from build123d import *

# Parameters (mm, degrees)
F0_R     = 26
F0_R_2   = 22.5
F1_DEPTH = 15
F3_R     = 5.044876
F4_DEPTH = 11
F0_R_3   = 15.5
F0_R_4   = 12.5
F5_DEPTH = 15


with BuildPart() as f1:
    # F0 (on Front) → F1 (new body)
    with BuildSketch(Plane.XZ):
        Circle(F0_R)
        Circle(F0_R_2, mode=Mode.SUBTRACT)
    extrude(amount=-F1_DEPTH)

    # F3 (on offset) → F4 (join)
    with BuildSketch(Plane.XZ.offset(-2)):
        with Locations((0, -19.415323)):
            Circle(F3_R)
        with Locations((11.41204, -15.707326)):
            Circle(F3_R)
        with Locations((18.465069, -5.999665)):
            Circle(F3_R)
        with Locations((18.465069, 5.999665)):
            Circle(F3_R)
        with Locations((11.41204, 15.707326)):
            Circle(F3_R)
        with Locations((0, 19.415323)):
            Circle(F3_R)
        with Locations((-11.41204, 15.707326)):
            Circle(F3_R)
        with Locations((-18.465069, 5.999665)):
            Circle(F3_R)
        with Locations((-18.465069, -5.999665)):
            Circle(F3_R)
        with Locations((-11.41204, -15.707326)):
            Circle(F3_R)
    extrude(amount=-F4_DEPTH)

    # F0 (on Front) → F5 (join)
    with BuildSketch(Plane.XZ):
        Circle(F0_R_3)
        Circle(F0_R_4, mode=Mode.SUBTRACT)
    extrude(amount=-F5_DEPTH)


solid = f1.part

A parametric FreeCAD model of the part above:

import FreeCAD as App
import Part
import Sketcher
Q = App.Units.Quantity

doc = App.newDocument("Part")
body = doc.addObject("PartDesign::Body", "Body")

# Sketch on XZ plane
sketch1 = doc.addObject("Sketcher::SketchObject", "Sketch")
body.addObject(sketch1)
sketch1.AttachmentSupport = (doc.XZ_Plane, [""])
sketch1.MapMode = "FlatFace"
sketch1.addGeometry(Part.Circle(App.Vector(0, 0, 0), App.Vector(0, 0, 1), 26), False)
sketch1.addGeometry(Part.Circle(App.Vector(0, 0, 0), App.Vector(0, 0, 1), 22), False)
sketch1.addConstraint(Sketcher.Constraint("Coincident", 0, 3, -1, 1))
sketch1.addConstraint(Sketcher.Constraint("Coincident", 1, 3, -1, 1))
sketch1.addConstraint(Sketcher.Constraint("Diameter", 0, Q("52 mm")))
sketch1.addConstraint(Sketcher.Constraint("Diameter", 1, Q("45 mm")))
pad1 = doc.addObject("PartDesign::Pad", "Pad")
body.addObject(pad1)
pad1.Profile = sketch1
pad1.Length = 15
pad1.Reversed = True

# Sketch on XZ plane
sketch2 = doc.addObject("Sketcher::SketchObject", "Sketch001")
body.addObject(sketch2)
sketch2.AttachmentSupport = (doc.XZ_Plane, [""])
sketch2.MapMode = "FlatFace"
sketch2.AttachmentOffset = App.Placement(App.Vector(0, 0, -2), App.Rotation())
sketch2.addGeometry(Part.Circle(App.Vector(0, -19, 0), App.Vector(0, 0, 1), 5), False)
sketch2.addGeometry(Part.Circle(App.Vector(11, -16, 0), App.Vector(0, 0, 1), 5), False)
sketch2.addGeometry(Part.Circle(App.Vector(18, -6, 0), App.Vector(0, 0, 1), 5), False)
sketch2.addGeometry(Part.Circle(App.Vector(18, 6, 0), App.Vector(0, 0, 1), 5), False)
sketch2.addGeometry(Part.Circle(App.Vector(11, 16, 0), App.Vector(0, 0, 1), 5), False)
sketch2.addGeometry(Part.Circle(App.Vector(0, 19, 0), App.Vector(0, 0, 1), 5), False)
sketch2.addGeometry(Part.Circle(App.Vector(-11, 16, 0), App.Vector(0, 0, 1), 5), False)
sketch2.addGeometry(Part.Circle(App.Vector(-18, 6, 0), App.Vector(0, 0, 1), 5), False)
sketch2.addGeometry(Part.Circle(App.Vector(-18, -6, 0), App.Vector(0, 0, 1), 5), False)
sketch2.addGeometry(Part.Circle(App.Vector(-11, -16, 0), App.Vector(0, 0, 1), 5), False)
sketch2.addConstraint(Sketcher.Constraint("Equal", 0, 1))
sketch2.addConstraint(Sketcher.Constraint("Equal", 1, 2))
sketch2.addConstraint(Sketcher.Constraint("Equal", 2, 3))
sketch2.addConstraint(Sketcher.Constraint("Equal", 3, 4))
sketch2.addConstraint(Sketcher.Constraint("Equal", 4, 5))
sketch2.addConstraint(Sketcher.Constraint("Equal", 5, 6))
sketch2.addConstraint(Sketcher.Constraint("Equal", 6, 7))
sketch2.addConstraint(Sketcher.Constraint("Equal", 7, 8))
sketch2.addConstraint(Sketcher.Constraint("Equal", 8, 9))
sketch2.addConstraint(Sketcher.Constraint("Symmetric", 0, 3, 5, 3, -1, 1))
sketch2.addConstraint(Sketcher.Constraint("Symmetric", 1, 3, 6, 3, -1, 1))
sketch2.addConstraint(Sketcher.Constraint("Symmetric", 2, 3, 7, 3, -1, 1))
sketch2.addConstraint(Sketcher.Constraint("Symmetric", 3, 3, 8, 3, -1, 1))
sketch2.addConstraint(Sketcher.Constraint("Symmetric", 4, 3, 9, 3, -1, 1))
sketch2.addConstraint(Sketcher.Constraint("Symmetric", 4, 3, 6, 3, -2))
sketch2.addConstraint(Sketcher.Constraint("Symmetric", 3, 3, 7, 3, -2))
sketch2.addConstraint(Sketcher.Constraint("PointOnObject", 0, 3, -2))
sketch2.addConstraint(Sketcher.Constraint("Diameter", 0, Q("10.089752 mm")))
sketch2.addConstraint(Sketcher.Constraint("DistanceX", -1, 1, 1, 3, Q("11.41204 mm")))
sketch2.addConstraint(Sketcher.Constraint("DistanceX", -1, 1, 2, 3, Q("18.465069 mm")))
sketch2.addConstraint(Sketcher.Constraint("DistanceY", 1, 3, 2, 3, Q("9.707661 mm")))
sketch2.addConstraint(Sketcher.Constraint("DistanceY", 2, 3, 3, 3, Q("11.99933 mm")))
sketch2.addConstraint(Sketcher.Constraint("DistanceY", 0, 3, 3, 3, Q("25.414988 mm")))
pad2 = doc.addObject("PartDesign::Pad", "Pad001")
body.addObject(pad2)
pad2.Profile = sketch2
pad2.Length = 11
pad2.Reversed = True

# Sketch on XZ plane
sketch3 = doc.addObject("Sketcher::SketchObject", "Sketch002")
body.addObject(sketch3)
sketch3.AttachmentSupport = (doc.XZ_Plane, [""])
sketch3.MapMode = "FlatFace"
sketch3.addGeometry(Part.Circle(App.Vector(0, 0, 0), App.Vector(0, 0, 1), 16), False)
sketch3.addGeometry(Part.Circle(App.Vector(0, 0, 0), App.Vector(0, 0, 1), 12), False)
sketch3.addConstraint(Sketcher.Constraint("Coincident", 0, 3, -1, 1))
sketch3.addConstraint(Sketcher.Constraint("Coincident", 1, 3, -1, 1))
sketch3.addConstraint(Sketcher.Constraint("Diameter", 0, Q("31 mm")))
sketch3.addConstraint(Sketcher.Constraint("Diameter", 1, Q("25 mm")))
pad3 = doc.addObject("PartDesign::Pad", "Pad002")
body.addObject(pad3)
pad3.Profile = sketch3
pad3.Length = 15
pad3.Reversed = True

doc.recompute()
